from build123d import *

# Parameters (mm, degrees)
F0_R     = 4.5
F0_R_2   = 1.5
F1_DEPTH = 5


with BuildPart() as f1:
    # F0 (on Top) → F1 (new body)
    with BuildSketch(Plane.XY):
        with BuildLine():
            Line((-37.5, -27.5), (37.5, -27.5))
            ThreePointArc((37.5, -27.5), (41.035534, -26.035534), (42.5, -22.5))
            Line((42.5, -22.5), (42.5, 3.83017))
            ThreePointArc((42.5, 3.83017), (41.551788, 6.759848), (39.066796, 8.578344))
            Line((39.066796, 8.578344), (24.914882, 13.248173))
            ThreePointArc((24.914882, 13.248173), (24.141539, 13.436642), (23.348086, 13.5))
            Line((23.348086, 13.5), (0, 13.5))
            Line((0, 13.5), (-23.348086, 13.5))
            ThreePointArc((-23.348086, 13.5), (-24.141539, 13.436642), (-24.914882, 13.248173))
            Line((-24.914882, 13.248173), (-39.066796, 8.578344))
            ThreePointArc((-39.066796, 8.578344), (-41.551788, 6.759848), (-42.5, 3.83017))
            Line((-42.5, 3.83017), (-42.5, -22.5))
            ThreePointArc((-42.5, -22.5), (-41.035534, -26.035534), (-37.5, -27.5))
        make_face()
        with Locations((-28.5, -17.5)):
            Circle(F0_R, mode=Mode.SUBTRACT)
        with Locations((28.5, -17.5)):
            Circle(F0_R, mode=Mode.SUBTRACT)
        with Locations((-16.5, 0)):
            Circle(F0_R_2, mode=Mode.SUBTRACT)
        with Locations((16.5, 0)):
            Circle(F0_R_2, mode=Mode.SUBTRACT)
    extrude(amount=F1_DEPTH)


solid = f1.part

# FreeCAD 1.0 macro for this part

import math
import FreeCAD as App
import Part
import Sketcher
from FreeCAD import Vector

doc = App.newDocument("Part")
body = doc.addObject("PartDesign::Body", "Body")

# Sketch on XY plane
sketch1 = body.newObject("Sketcher::SketchObject", "Sketch")
sketch1.AttachmentSupport = (doc.getObject("XY_Plane"), [""])
sketch1.MapMode = "FlatFace"
sketch1.addGeometry([
    Part.LineSegment(Vector(-37.5, -27.5, 0), Vector(37.5, -27.5, 0)),  # 0
    Part.ArcOfCircle(Part.Circle(Vector(37.5, -22.5, 0), Vector(0, 0, 1), 5), math.radians(-90.000004), math.radians(0.000004)),  # 1
    Part.LineSegment(Vector(42.5, -22.5, 0), Vector(42.5, 3.83017, 0)),  # 2
    Part.ArcOfCircle(Part.Circle(Vector(37.499998, 3.830169, 0), Vector(0, 0, 1), 5.000002), math.radians(0.000009), math.radians(71.738195)),  # 3
    Part.LineSegment(Vector(39.066796, 8.578344, 0), Vector(24.914882, 13.248173, 0)),  # 4
    Part.ArcOfCircle(Part.Circle(Vector(23.348089, 8.500028, 0), Vector(0, 0, 1), 4.999972), math.radians(71.738146), math.radians(90.00004)),  # 5
    Part.LineSegment(Vector(23.348086, 13.5, 0), Vector(-23.348086, 13.5, 0)),  # 6
    Part.ArcOfCircle(Part.Circle(Vector(-23.348089, 8.500028, 0), Vector(0, 0, 1), 4.999972), math.radians(89.99996), math.radians(108.261854)),  # 7
    Part.LineSegment(Vector(-24.914882, 13.248173, 0), Vector(-39.066796, 8.578344, 0)),  # 8
    Part.ArcOfCircle(Part.Circle(Vector(-37.499998, 3.830169, 0), Vector(0, 0, 1), 5.000002), math.radians(108.261805), math.radians(179.999991)),  # 9
    Part.LineSegment(Vector(-42.5, 3.83017, 0), Vector(-42.5, -22.5, 0)),  # 10
    Part.ArcOfCircle(Part.Circle(Vector(-37.5, -22.5, 0), Vector(0, 0, 1), 5), math.radians(179.999996), math.radians(270.000004)),  # 11
    Part.Circle(Vector(-28.5, -17.5, 0), Vector(0, 0, 1), 4.5),  # 12
    Part.Circle(Vector(28.5, -17.5, 0), Vector(0, 0, 1), 4.5),  # 13
    Part.Circle(Vector(-16.5, 0, 0), Vector(0, 0, 1), 1.5),  # 14
    Part.Circle(Vector(16.5, 0, 0), Vector(0, 0, 1), 1.5),  # 15
], False)
sketch1.addConstraint([
    Sketcher.Constraint("Tangent", 0, 2, 1, 1),
    Sketcher.Constraint("Tangent", 1, 2, 2, 1),
    Sketcher.Constraint("Tangent", 2, 2, 3, 1),
    Sketcher.Constraint("Tangent", 3, 2, 4, 1),
    Sketcher.Constraint("Tangent", 4, 2, 5, 1),
    Sketcher.Constraint("Tangent", 5, 2, 6, 1),
    Sketcher.Constraint("Tangent", 6, 2, 7, 1),
    Sketcher.Constraint("Tangent", 7, 2, 8, 1),
    Sketcher.Constraint("Tangent", 8, 2, 9, 1),
    Sketcher.Constraint("Tangent", 9, 2, 10, 1),
    Sketcher.Constraint("Tangent", 10, 2, 11, 1),
    Sketcher.Constraint("Tangent", 11, 2, 0, 1),
    Sketcher.Constraint("Horizontal", 0),
    Sketcher.Constraint("Vertical", 2),
    Sketcher.Constraint("Horizontal", 6),
    Sketcher.Constraint("Vertical", 10),
    Sketcher.Constraint("Equal", 5, 7),
    Sketcher.Constraint("Equal", 3, 9),
    Sketcher.Constraint("Equal", 1, 11),
    Sketcher.Constraint("Equal", 12, 13),
    Sketcher.Constraint("Equal", 14, 15),
    Sketcher.Constraint("Symmetric", 14, 3, 15, 3, -1, 1),
    Sketcher.Constraint("Symmetric", 3, 3, 9, 3, -2),
    Sketcher.Constraint("Symmetric", 12, 3, 13, 3, -2),
    Sketcher.Constraint("PointOnObject", 14, 3, -1),
    Sketcher.Constraint("Horizontal", 4, 2, 7, 2),
    Sketcher.Constraint("Vertical", 3, 3, 0, 2),
    Sketcher.Constraint("Diameter", 12, 9.0),
    Sketcher.Constraint("Diameter", 14, 3.0),
    Sketcher.Constraint("Radius", 1, 5.0),
    Sketcher.Constraint("DistanceX", 0, 1, 0, 2, 75.0),
    Sketcher.Constraint("DistanceX", 11, 3, 12, 3, 9.0),
    Sketcher.Constraint("DistanceY", 11, 3, 12, 3, 5.0),
    Sketcher.Constraint("DistanceX", 12, 3, 14, 3, 12.0),
    Sketcher.Constraint("DistanceY", 12, 3, 6, 2, 31.0),
    Sketcher.Constraint("DistanceY", 1, 3, -1, 1, 22.5),
    Sketcher.Constraint("Radius", 5, 4.999972),
    Sketcher.Constraint("DistanceX", 6, 2, 6, 1, 46.696172),
    Sketcher.Constraint("DistanceY", 2, 1, 2, 2, 26.33017),
])
pad1 = body.newObject("PartDesign::Pad", "Pad")
pad1.Profile = sketch1
pad1.Length = 5

doc.recompute()
